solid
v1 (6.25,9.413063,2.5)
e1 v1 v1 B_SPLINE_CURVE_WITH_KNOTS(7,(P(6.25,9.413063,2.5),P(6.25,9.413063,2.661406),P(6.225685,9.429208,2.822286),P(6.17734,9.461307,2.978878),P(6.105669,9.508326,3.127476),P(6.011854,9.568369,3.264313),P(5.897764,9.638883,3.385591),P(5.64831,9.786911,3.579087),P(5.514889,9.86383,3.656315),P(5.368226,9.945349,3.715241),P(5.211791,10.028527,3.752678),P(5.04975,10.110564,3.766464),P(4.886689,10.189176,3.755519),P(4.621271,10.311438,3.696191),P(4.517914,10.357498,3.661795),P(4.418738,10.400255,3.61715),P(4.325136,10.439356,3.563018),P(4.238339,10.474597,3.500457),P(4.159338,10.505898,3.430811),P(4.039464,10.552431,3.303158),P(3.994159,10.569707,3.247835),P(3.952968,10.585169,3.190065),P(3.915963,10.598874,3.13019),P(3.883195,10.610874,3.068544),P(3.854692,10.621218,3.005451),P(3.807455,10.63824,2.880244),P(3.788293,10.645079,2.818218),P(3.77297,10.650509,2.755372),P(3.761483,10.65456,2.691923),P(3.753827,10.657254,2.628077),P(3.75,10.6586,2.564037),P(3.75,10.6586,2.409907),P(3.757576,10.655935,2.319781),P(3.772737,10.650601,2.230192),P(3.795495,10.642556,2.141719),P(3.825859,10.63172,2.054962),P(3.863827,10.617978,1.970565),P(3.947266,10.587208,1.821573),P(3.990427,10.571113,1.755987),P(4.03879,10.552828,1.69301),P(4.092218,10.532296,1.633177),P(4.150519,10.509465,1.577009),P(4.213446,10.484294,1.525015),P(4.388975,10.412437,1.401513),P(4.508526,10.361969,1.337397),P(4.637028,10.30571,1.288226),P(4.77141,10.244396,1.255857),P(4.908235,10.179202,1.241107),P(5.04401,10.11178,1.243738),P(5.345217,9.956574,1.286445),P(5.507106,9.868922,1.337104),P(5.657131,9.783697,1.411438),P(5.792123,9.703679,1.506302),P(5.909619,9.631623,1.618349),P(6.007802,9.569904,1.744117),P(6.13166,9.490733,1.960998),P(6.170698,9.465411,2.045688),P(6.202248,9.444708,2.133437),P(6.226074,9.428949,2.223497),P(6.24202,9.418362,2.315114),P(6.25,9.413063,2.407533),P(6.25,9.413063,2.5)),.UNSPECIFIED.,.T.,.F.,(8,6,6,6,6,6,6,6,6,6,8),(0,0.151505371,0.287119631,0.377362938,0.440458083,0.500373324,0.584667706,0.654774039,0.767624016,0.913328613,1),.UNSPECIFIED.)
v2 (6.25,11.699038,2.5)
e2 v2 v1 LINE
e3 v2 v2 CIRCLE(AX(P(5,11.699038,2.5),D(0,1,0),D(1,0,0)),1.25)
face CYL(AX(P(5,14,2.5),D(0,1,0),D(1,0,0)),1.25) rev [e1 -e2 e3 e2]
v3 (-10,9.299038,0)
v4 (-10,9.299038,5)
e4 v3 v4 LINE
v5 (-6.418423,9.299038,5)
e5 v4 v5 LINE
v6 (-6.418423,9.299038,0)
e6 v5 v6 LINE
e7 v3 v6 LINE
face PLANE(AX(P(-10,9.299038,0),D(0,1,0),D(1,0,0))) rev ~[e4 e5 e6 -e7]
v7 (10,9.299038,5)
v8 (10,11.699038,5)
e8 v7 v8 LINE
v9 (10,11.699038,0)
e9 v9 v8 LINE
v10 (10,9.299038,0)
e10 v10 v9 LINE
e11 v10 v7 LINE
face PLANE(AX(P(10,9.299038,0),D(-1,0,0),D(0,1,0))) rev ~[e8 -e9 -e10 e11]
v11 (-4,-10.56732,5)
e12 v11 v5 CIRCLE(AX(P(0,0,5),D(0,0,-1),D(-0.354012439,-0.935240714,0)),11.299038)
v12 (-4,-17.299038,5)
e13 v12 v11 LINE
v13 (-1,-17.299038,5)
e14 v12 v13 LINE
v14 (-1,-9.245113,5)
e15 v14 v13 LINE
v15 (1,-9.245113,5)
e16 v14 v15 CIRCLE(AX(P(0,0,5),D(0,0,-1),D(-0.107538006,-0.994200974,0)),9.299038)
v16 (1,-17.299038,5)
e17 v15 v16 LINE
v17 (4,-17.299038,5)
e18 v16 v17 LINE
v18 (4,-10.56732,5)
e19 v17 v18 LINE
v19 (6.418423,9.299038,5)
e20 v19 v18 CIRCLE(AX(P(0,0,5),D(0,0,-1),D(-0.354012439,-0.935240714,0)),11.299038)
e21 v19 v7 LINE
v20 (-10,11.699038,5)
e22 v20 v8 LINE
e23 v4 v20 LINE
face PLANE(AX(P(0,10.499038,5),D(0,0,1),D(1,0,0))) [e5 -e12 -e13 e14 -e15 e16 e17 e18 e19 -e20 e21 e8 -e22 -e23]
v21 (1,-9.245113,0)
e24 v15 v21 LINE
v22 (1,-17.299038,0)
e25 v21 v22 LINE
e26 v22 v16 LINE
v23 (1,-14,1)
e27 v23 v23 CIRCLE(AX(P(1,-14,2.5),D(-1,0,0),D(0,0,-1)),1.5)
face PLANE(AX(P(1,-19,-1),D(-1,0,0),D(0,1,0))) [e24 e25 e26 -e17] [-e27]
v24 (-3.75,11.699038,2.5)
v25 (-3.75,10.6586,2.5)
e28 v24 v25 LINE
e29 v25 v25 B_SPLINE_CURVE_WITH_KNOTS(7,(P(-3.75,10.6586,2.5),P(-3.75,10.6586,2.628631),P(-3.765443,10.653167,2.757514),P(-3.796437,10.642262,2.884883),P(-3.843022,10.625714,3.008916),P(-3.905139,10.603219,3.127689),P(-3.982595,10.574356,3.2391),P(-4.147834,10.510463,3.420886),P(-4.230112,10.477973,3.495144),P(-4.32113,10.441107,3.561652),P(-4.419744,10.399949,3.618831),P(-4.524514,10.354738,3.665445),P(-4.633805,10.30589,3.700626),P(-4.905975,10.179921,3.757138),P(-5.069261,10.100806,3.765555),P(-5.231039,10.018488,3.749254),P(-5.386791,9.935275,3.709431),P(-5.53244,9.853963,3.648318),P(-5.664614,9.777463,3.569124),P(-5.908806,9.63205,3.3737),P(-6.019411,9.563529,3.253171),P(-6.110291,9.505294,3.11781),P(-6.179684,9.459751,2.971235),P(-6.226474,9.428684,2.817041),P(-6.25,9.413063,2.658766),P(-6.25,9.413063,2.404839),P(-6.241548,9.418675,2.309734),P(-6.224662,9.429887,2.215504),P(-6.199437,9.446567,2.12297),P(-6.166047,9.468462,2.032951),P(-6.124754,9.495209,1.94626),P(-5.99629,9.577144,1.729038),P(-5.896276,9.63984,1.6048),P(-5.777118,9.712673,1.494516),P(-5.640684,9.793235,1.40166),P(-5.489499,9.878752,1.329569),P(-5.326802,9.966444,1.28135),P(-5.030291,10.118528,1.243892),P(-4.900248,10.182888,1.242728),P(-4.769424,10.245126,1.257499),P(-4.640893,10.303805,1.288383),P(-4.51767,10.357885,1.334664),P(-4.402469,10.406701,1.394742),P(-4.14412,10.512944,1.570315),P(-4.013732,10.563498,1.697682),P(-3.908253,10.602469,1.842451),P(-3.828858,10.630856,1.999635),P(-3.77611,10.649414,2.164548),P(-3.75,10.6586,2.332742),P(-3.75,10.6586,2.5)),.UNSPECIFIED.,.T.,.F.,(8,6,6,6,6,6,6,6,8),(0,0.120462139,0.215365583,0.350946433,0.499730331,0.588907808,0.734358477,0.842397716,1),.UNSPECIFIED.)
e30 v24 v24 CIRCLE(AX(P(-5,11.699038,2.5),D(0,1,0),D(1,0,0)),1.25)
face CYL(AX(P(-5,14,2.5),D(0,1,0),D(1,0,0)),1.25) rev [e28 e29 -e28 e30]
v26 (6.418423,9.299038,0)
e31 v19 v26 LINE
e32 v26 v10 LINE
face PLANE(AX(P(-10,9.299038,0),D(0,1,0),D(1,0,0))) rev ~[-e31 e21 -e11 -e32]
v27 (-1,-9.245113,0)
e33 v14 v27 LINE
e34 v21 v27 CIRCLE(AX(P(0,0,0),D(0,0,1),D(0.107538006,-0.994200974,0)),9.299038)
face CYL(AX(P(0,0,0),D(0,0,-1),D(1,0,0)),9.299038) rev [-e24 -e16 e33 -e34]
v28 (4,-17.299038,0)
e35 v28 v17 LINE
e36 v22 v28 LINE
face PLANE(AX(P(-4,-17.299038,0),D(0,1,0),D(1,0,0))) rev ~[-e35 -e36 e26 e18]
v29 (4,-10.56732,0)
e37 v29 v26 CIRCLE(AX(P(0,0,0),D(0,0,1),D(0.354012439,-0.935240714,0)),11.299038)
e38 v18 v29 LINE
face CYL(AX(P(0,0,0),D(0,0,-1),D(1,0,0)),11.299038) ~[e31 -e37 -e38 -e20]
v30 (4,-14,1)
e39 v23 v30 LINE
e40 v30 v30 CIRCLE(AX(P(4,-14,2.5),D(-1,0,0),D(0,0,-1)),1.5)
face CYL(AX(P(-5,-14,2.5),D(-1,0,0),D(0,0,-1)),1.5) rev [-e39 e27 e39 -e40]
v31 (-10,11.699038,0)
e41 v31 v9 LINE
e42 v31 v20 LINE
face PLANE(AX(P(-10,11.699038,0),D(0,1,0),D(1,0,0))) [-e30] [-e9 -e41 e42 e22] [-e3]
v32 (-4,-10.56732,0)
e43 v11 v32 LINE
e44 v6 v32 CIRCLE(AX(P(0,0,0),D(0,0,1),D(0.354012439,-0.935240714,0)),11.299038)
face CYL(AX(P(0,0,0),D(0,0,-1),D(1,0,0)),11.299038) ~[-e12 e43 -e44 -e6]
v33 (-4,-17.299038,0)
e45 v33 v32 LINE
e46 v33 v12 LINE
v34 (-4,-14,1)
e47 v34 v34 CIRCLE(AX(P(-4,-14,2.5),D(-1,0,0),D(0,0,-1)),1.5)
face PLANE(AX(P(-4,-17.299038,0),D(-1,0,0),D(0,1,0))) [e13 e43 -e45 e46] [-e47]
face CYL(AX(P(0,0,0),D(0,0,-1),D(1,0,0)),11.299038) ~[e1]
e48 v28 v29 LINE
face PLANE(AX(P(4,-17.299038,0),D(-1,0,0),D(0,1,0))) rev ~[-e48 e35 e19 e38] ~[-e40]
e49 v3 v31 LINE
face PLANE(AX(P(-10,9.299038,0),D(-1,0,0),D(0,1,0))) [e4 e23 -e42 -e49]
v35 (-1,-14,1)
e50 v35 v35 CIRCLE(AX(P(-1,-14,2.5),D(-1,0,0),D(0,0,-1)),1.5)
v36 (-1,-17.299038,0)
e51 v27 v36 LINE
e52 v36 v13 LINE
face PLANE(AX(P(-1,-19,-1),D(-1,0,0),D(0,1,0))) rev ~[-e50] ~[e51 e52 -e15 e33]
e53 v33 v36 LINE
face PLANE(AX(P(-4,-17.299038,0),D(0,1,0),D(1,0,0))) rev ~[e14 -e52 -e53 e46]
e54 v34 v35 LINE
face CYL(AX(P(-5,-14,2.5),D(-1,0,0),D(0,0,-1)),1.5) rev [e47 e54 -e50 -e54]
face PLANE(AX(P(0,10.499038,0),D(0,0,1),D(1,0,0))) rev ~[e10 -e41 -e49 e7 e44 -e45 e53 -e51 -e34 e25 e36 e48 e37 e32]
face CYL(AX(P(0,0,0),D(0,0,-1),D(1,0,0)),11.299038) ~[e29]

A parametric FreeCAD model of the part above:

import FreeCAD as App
import Part
import Sketcher
from FreeCAD import Vector
Q = App.Units.Quantity


def add_polygon(sketch, points):
    """Adds a closed chain of lines whose ends are joined by coincident constraints."""
    first, n = sketch.GeometryCount, len(points)
    for a, b in zip(points, points[1:] + points[:1]):
        sketch.addGeometry(Part.LineSegment(App.Vector(*a, 0), App.Vector(*b, 0)), False)
    for i in range(n):
        sketch.addConstraint(Sketcher.Constraint("Coincident", first + i, 2, first + (i + 1) % n, 1))

doc = App.newDocument("Part")
body = doc.addObject("PartDesign::Body", "Body")

sketch1 = body.newObject("Sketcher::SketchObject", "Sketch")
sketch1.AttachmentSupport = (doc.getObject("XY_Plane"), [""])
sketch1.MapMode = "FlatFace"
sketch1.AttachmentOffset = App.Placement(Vector(0, 0, -1), App.Rotation())
add_polygon(sketch1, [(-1, -9), (-1, -19), (1, -19), (1, -9)])
sketch1.addConstraint(Sketcher.Constraint("Vertical", 0))
sketch1.addConstraint(Sketcher.Constraint("Horizontal", 1))
sketch1.addConstraint(Sketcher.Constraint("Vertical", 2))
sketch1.addConstraint(Sketcher.Constraint("Horizontal", 3))
sketch1.addConstraint(Sketcher.Constraint("DistanceX", 1, 1, 1, 2, Q("2 mm")))
sketch1.addConstraint(Sketcher.Constraint("DistanceY", 0, 2, 0, 1, Q("10 mm")))
sketch1.addConstraint(Sketcher.Constraint("DistanceX", 0, 2, -1, 1, Q("1 mm")))
sketch1.addConstraint(Sketcher.Constraint("DistanceY", 0, 2, -1, 1, Q("19 mm")))
pad1 = body.newObject("PartDesign::Pad", "Pad")
pad1.Profile = sketch1
pad1.Length = 10
body2 = doc.addObject("PartDesign::Body", "Body001")

sketch2 = body2.newObject("Sketcher::SketchObject", "Sketch001")
sketch2.AttachmentSupport = (doc.getObject("XY_Plane001"), [""])
sketch2.MapMode = "FlatFace"
sketch2.addGeometry(Part.Circle(Vector(0, 0, 0), Vector(0, 0, 1), 9), False)
sketch2.addConstraint(Sketcher.Constraint("Coincident", 0, 3, -1, 1))
sketch2.addConstraint(Sketcher.Constraint("Diameter", 0, Q("18.598076 mm")))
pad2 = body2.newObject("PartDesign::Pad", "Pad001")
pad2.Profile = sketch2
pad2.Length = 10
body3 = doc.addObject("PartDesign::Body", "Body002")

sketch3 = body3.newObject("Sketcher::SketchObject", "Sketch002")
sketch3.AttachmentSupport = (doc.getObject("XY_Plane002"), [""])
sketch3.MapMode = "FlatFace"
sketch3.addGeometry(Part.Circle(Vector(0, 0, 0), Vector(0, 0, 1), 11), False)
sketch3.addConstraint(Sketcher.Constraint("Coincident", 0, 3, -1, 1))
sketch3.addConstraint(Sketcher.Constraint("Diameter", 0, Q("22.598076 mm")))
pad3 = body3.newObject("PartDesign::Pad", "Pad002")
pad3.Profile = sketch3
pad3.Length = 5
doc.recompute()

boolean = body3.newObject("PartDesign::Boolean", "Boolean")
boolean.Type = "Cut"
boolean.addObjects([body2])
body4 = doc.addObject("PartDesign::Body", "Body003")

sketch4 = body4.newObject("Sketcher::SketchObject", "Sketch003")
sketch4.AttachmentSupport = (doc.getObject("XY_Plane003"), [""])
sketch4.MapMode = "FlatFace"
sketch4.addGeometry(Part.Circle(Vector(0, 0, 0), Vector(0, 0, 1), 1.2), False)
sketch4.addConstraint(Sketcher.Constraint("Coincident", 0, 3, -1, 1))
sketch4.addConstraint(Sketcher.Constraint("Diameter", 0, Q("2.5 mm")))
pad4 = body4.newObject("PartDesign::Pad", "Pad003")
pad4.Profile = sketch4
pad4.Length = 5
body5 = doc.addObject("PartDesign::Body", "Body004")
doc.recompute()

body4.Placement = App.Placement(Vector(0, 0, 0), App.Rotation(Vector(1, 0, 0), 90))
boolean2 = body5.newObject("PartDesign::Boolean", "Boolean001")
boolean2.Type = "Fuse"
boolean2.addObjects([body4])
body6 = doc.addObject("PartDesign::Body", "Body005")
doc.recompute()

body5.Placement = App.Placement(Vector(-5, 14, 2.5), App.Rotation(Vector(0, 0, 1), 0))
boolean3 = body6.newObject("PartDesign::Boolean", "Boolean002")
boolean3.Type = "Fuse"
boolean3.addObjects([body5])
body7 = doc.addObject("PartDesign::Body", "Body006")

sketch5 = body7.newObject("Sketcher::SketchObject", "Sketch004")
sketch5.AttachmentSupport = (doc.getObject("XY_Plane006"), [""])
sketch5.MapMode = "FlatFace"
sketch5.addGeometry(Part.Circle(Vector(0, 0, 0), Vector(0, 0, 1), 1.2), False)
sketch5.addConstraint(Sketcher.Constraint("Coincident", 0, 3, -1, 1))
sketch5.addConstraint(Sketcher.Constraint("Diameter", 0, Q("2.5 mm")))
pad5 = body7.newObject("PartDesign::Pad", "Pad004")
pad5.Profile = sketch5
pad5.Length = 5
body8 = doc.addObject("PartDesign::Body", "Body007")
doc.recompute()

body7.Placement = App.Placement(Vector(0, 0, 0), App.Rotation(Vector(1, 0, 0), 90))
boolean4 = body8.newObject("PartDesign::Boolean", "Boolean003")
boolean4.Type = "Fuse"
boolean4.addObjects([body7])
body9 = doc.addObject("PartDesign::Body", "Body008")
doc.recompute()

body8.Placement = App.Placement(Vector(5, 14, 2.5), App.Rotation(Vector(0, 0, 1), 0))
boolean5 = body9.newObject("PartDesign::Boolean", "Boolean004")
boolean5.Type = "Fuse"
boolean5.addObjects([body8])
body10 = doc.addObject("PartDesign::Body", "Body009")

sketch6 = body10.newObject("Sketcher::SketchObject", "Sketch005")
sketch6.AttachmentSupport = (doc.getObject("XY_Plane009"), [""])
sketch6.MapMode = "FlatFace"
add_polygon(sketch6, [(-10, 11.7), (-10, 9.3), (10, 9.3), (10, 11.7)])
sketch6.addConstraint(Sketcher.Constraint("Vertical", 0))
sketch6.addConstraint(Sketcher.Constraint("Horizontal", 1))
sketch6.addConstraint(Sketcher.Constraint("Vertical", 2))
sketch6.addConstraint(Sketcher.Constraint("Horizontal", 3))
sketch6.addConstraint(Sketcher.Constraint("DistanceX", 1, 1, 1, 2, Q("20 mm")))
sketch6.addConstraint(Sketcher.Constraint("DistanceY", 0, 2, 0, 1, Q("2.4 mm")))
sketch6.addConstraint(Sketcher.Constraint("DistanceX", 0, 2, -1, 1, Q("10 mm")))
sketch6.addConstraint(Sketcher.Constraint("DistanceY", -1, 1, 0, 2, Q("9.299038 mm")))
pad6 = body10.newObject("PartDesign::Pad", "Pad005")
pad6.Profile = sketch6
pad6.Length = 5
doc.recompute()

boolean6 = body10.newObject("PartDesign::Boolean", "Boolean005")
boolean6.Type = "Cut"
boolean6.addObjects([body9])
doc.recompute()

boolean7 = body10.newObject("PartDesign::Boolean", "Boolean006")
boolean7.Type = "Cut"
boolean7.addObjects([body6])
body11 = doc.addObject("PartDesign::Body", "Body010")

sketch7 = body11.newObject("Sketcher::SketchObject", "Sketch006")
sketch7.AttachmentSupport = (doc.getObject("XY_Plane010"), [""])
sketch7.MapMode = "FlatFace"
sketch7.addGeometry(Part.Circle(Vector(0, 0, 0), Vector(0, 0, 1), 1.5), False)
sketch7.addConstraint(Sketcher.Constraint("Coincident", 0, 3, -1, 1))
sketch7.addConstraint(Sketcher.Constraint("Diameter", 0, Q("3 mm")))
pad7 = body11.newObject("PartDesign::Pad", "Pad006")
pad7.Profile = sketch7
pad7.Length = 10
body12 = doc.addObject("PartDesign::Body", "Body011")
doc.recompute()

body11.Placement = App.Placement(Vector(0, 0, 0), App.Rotation(Vector(0, 1, 0), 90))
boolean8 = body12.newObject("PartDesign::Boolean", "Boolean007")
boolean8.Type = "Fuse"
boolean8.addObjects([body11])
body13 = doc.addObject("PartDesign::Body", "Body012")
doc.recompute()

body12.Placement = App.Placement(Vector(-5, -14, 2.5), App.Rotation(Vector(0, 0, 1), 0))
boolean9 = body13.newObject("PartDesign::Boolean", "Boolean008")
boolean9.Type = "Fuse"
boolean9.addObjects([body12])
body14 = doc.addObject("PartDesign::Body", "Body013")

sketch8 = body14.newObject("Sketcher::SketchObject", "Sketch007")
sketch8.AttachmentSupport = (doc.getObject("XY_Plane013"), [""])
sketch8.MapMode = "FlatFace"
add_polygon(sketch8, [(-4, -9), (-4, -17), (4, -17), (4, -9)])
sketch8.addConstraint(Sketcher.Constraint("Vertical", 0))
sketch8.addConstraint(Sketcher.Constraint("Horizontal", 1))
sketch8.addConstraint(Sketcher.Constraint("Vertical", 2))
sketch8.addConstraint(Sketcher.Constraint("Horizontal", 3))
sketch8.addConstraint(Sketcher.Constraint("Equal", 3, 0))
sketch8.addConstraint(Sketcher.Constraint("DistanceX", 1, 1, 1, 2, Q("8 mm")))
sketch8.addConstraint(Sketcher.Constraint("DistanceX", 0, 2, -1, 1, Q("4 mm")))
sketch8.addConstraint(Sketcher.Constraint("DistanceY", 0, 2, -1, 1, Q("17.299038 mm")))
pad8 = body14.newObject("PartDesign::Pad", "Pad007")
pad8.Profile = sketch8
pad8.Length = 5
doc.recompute()

boolean10 = body14.newObject("PartDesign::Boolean", "Boolean009")
boolean10.Type = "Cut"
boolean10.addObjects([body13])
doc.recompute()

boolean11 = body14.newObject("PartDesign::Boolean", "Boolean010")
boolean11.Type = "Fuse"
boolean11.addObjects([body3])
doc.recompute()

boolean12 = body14.newObject("PartDesign::Boolean", "Boolean011")
boolean12.Type = "Fuse"
boolean12.addObjects([body10])
doc.recompute()

boolean13 = body14.newObject("PartDesign::Boolean", "Boolean012")
boolean13.Type = "Cut"
boolean13.addObjects([body])

doc.recompute()
